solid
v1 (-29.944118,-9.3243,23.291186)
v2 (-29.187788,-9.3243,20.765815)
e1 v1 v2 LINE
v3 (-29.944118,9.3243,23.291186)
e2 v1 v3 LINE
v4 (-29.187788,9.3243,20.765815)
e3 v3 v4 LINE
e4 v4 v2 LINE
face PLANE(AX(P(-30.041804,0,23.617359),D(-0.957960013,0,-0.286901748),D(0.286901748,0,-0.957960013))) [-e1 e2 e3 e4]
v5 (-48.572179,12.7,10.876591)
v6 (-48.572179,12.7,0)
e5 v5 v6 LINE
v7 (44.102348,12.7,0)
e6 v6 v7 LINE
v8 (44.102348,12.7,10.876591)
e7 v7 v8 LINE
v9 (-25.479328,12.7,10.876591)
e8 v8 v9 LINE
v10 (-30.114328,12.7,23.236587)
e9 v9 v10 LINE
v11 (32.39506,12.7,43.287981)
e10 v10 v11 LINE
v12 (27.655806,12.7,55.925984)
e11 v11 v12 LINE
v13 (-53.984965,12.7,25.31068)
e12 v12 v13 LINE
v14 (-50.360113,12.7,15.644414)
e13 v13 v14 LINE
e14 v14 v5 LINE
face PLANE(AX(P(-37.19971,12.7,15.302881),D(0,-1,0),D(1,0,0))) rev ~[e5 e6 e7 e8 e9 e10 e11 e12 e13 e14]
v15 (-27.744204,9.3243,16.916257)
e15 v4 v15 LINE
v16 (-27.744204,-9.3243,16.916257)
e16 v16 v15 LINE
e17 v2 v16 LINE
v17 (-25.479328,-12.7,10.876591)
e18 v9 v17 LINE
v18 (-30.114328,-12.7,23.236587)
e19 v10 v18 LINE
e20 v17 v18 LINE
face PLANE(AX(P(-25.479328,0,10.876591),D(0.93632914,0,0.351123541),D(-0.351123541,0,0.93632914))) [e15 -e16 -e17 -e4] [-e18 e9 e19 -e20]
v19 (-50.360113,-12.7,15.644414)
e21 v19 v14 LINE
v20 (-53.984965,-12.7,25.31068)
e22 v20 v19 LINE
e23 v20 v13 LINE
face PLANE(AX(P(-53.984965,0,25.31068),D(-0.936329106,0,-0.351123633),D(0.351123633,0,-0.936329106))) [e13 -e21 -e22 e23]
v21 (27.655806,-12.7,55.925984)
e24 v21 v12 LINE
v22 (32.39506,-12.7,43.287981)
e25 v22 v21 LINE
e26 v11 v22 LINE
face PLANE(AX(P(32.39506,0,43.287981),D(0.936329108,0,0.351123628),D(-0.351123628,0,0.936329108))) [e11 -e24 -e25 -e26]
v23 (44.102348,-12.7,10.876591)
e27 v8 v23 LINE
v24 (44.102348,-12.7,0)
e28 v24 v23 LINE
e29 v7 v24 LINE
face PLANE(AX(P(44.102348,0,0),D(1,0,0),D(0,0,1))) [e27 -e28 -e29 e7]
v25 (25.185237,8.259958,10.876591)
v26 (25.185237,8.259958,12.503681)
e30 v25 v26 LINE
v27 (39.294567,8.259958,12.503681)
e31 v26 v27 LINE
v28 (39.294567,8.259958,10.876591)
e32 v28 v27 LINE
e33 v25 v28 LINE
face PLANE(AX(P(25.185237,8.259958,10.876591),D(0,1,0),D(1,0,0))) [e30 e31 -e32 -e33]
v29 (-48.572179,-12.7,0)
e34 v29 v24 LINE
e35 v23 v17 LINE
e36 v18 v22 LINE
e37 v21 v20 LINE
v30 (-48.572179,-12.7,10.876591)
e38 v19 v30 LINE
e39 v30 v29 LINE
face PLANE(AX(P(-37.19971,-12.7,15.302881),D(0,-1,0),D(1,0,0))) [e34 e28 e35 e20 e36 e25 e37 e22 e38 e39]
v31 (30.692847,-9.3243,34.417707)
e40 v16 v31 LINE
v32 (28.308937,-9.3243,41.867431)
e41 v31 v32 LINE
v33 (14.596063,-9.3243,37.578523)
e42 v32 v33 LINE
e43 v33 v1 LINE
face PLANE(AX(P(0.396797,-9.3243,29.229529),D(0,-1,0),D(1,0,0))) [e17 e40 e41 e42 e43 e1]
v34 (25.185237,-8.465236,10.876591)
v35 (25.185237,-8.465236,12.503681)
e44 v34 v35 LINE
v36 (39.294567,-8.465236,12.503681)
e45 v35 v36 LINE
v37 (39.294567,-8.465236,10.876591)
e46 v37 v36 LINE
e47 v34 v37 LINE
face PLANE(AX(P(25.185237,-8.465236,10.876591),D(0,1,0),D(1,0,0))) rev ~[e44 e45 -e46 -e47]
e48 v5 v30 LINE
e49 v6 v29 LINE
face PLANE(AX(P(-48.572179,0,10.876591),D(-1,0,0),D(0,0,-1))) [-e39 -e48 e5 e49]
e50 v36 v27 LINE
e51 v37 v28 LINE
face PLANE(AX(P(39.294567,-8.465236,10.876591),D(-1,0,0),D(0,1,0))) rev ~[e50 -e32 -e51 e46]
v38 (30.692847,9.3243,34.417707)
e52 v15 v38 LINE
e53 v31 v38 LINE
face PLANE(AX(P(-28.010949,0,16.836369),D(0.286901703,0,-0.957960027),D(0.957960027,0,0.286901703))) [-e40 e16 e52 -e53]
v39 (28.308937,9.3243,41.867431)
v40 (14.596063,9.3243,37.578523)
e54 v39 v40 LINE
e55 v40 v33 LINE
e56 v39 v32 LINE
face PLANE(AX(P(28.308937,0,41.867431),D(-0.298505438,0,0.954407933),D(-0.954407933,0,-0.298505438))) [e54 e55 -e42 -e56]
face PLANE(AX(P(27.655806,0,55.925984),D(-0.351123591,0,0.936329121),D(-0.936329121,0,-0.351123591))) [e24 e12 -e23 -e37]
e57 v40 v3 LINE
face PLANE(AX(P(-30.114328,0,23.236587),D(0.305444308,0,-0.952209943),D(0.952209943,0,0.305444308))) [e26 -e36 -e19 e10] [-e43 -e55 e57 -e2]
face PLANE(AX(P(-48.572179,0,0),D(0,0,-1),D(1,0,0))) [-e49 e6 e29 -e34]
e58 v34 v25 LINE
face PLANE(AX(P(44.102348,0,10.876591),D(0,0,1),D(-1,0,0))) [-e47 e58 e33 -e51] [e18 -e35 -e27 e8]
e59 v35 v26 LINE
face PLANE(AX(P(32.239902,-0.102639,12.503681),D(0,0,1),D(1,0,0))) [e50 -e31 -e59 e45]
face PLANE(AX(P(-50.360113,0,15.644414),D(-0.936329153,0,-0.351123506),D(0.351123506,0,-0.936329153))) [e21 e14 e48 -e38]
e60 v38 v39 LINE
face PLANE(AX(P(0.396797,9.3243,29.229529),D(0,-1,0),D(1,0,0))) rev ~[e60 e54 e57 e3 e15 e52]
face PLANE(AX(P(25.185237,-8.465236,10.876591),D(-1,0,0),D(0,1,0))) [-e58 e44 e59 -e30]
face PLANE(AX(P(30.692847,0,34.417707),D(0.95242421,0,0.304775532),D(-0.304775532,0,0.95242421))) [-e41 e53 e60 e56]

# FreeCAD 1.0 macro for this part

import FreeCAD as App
import Part
import Sketcher

V = App.Vector
Q = App.Units.Quantity

doc = App.newDocument("Part")
body = doc.addObject("PartDesign::Body", "Body")

sketch1 = body.newObject("Sketcher::SketchObject", "Sketch")
sketch1.AttachmentSupport = (doc.getObject("XZ_Plane"), [""])
sketch1.MapMode = "FlatFace"
sketch1.addGeometry([
    Part.LineSegment(V(-50, 16, 0), V(-49, 11, 0)),
    Part.LineSegment(V(-49, 11, 0), V(-49, 0, 0)),
    Part.LineSegment(V(-49, 0, 0), V(44, 0, 0)),
    Part.LineSegment(V(44, 0, 0), V(44, 11, 0)),
    Part.LineSegment(V(44, 11, 0), V(-25, 11, 0)),
    Part.LineSegment(V(-25, 11, 0), V(-30, 23, 0)),
    Part.LineSegment(V(-30, 23, 0), V(32, 43, 0)),
    Part.LineSegment(V(32, 43, 0), V(28, 56, 0)),
    Part.LineSegment(V(28, 56, 0), V(-54, 25, 0)),
    Part.LineSegment(V(-54, 25, 0), V(-50, 16, 0)),
], False)
sketch1.addConstraint([
    Sketcher.Constraint("Coincident", 0, 2, 1, 1),
    Sketcher.Constraint("Coincident", 1, 2, 2, 1),
    Sketcher.Constraint("Coincident", 2, 2, 3, 1),
    Sketcher.Constraint("Coincident", 3, 2, 4, 1),
    Sketcher.Constraint("Coincident", 4, 2, 5, 1),
    Sketcher.Constraint("Coincident", 5, 2, 6, 1),
    Sketcher.Constraint("Coincident", 6, 2, 7, 1),
    Sketcher.Constraint("Coincident", 7, 2, 8, 1),
    Sketcher.Constraint("Coincident", 8, 2, 9, 1),
    Sketcher.Constraint("Coincident", 9, 2, 0, 1),
    Sketcher.Constraint("Vertical", 1),
    Sketcher.Constraint("Horizontal", 2),
    Sketcher.Constraint("Vertical", 3),
    Sketcher.Constraint("Horizontal", 4),
    Sketcher.Constraint("PointOnObject", 1, 2, -1),
    Sketcher.Constraint("Parallel", 0, 5),
    Sketcher.Constraint("Parallel", 5, 7),
    Sketcher.Constraint("Perpendicular", 7, 8),
    Sketcher.Constraint("Perpendicular", 8, 9),
    Sketcher.Constraint("Horizontal", 0, 2, 3, 2),
    Sketcher.Constraint("DistanceY", 1, 2, 1, 1, 10.876591),
    Sketcher.Constraint("DistanceX", 5, 2, 4, 2, 4.635),
    Sketcher.Constraint("DistanceX", 2, 1, 2, 2, 92.674527),
    Sketcher.Constraint("DistanceX", 4, 2, 4, 1, 69.581676),
    Sketcher.Constraint("DistanceX", 0, 2, -1, 1, 48.572179),
    Sketcher.Constraint("DistanceX", -1, 1, 6, 2, 32.39506),
    Sketcher.Constraint("DistanceY", -1, 1, 6, 2, 43.287981),
    Sketcher.Constraint("DistanceY", -1, 1, 8, 2, 25.31068),
    Sketcher.Constraint("DistanceX", 8, 2, 7, 2, 81.640771),
    Sketcher.Constraint("Distance", 0, 5.092037),
])
pad1 = body.newObject("PartDesign::Pad", "Pad")
pad1.Profile = sketch1
pad1.Length = Q("1 in")
pad1.Midplane = True

sketch2 = body.newObject("Sketcher::SketchObject", "Sketch001")
sketch2.AttachmentSupport = (doc.getObject("XZ_Plane"), [""])
sketch2.MapMode = "FlatFace"
sketch2.addGeometry([
    Part.LineSegment(V(31, 34, 0), V(28, 42, 0)),
    Part.LineSegment(V(28, 42, 0), V(-30, 24, 0)),
    Part.LineSegment(V(-30, 24, 0), V(-28, 17, 0)),
    Part.LineSegment(V(-28, 17, 0), V(31, 34, 0)),
], False)
sketch2.addConstraint([
    Sketcher.Constraint("Coincident", 0, 2, 1, 1),
    Sketcher.Constraint("Coincident", 1, 2, 2, 1),
    Sketcher.Constraint("Coincident", 2, 2, 3, 1),
    Sketcher.Constraint("Coincident", 3, 2, 0, 1),
    Sketcher.Constraint("Perpendicular", 2, 3),
    Sketcher.Constraint("DistanceY", -1, 1, 0, 2, 41.867431),
    Sketcher.Constraint("DistanceY", -1, 1, 1, 2, 23.617359),
    Sketcher.Constraint("DistanceX", 2, 2, -1, 1, 28.010949),
    Sketcher.Constraint("DistanceY", -1, 1, 2, 2, 16.836369),
    Sketcher.Constraint("DistanceX", 1, 2, 0, 2, 58.350741),
    Sketcher.Constraint("DistanceX", 0, 2, 3, 2, 2.38391),
    Sketcher.Constraint("Distance", 0, 7.821855),
])
pad2 = body.newObject("PartDesign::Pad", "Pad001")
pad2.Profile = sketch2
pad2.Length = 18.6486
pad2.Midplane = True

sketch3 = body.newObject("Sketcher::SketchObject", "Sketch002")
sketch3.AttachmentSupport = (doc.getObject("XY_Plane"), [""])
sketch3.MapMode = "FlatFace"
sketch3.AttachmentOffset = App.Placement(V(0, 0, 10.876591), App.Rotation())
sketch3.addGeometry([
    Part.LineSegment(V(25, 8, 0), V(25, -8, 0)),
    Part.LineSegment(V(25, -8, 0), V(39, -8, 0)),
    Part.LineSegment(V(39, -8, 0), V(39, 8, 0)),
    Part.LineSegment(V(39, 8, 0), V(25, 8, 0)),
], False)
sketch3.addConstraint([
    Sketcher.Constraint("Coincident", 0, 2, 1, 1),
    Sketcher.Constraint("Coincident", 1, 2, 2, 1),
    Sketcher.Constraint("Coincident", 2, 2, 3, 1),
    Sketcher.Constraint("Coincident", 3, 2, 0, 1),
    Sketcher.Constraint("Vertical", 0),
    Sketcher.Constraint("Horizontal", 1),
    Sketcher.Constraint("Vertical", 2),
    Sketcher.Constraint("Horizontal", 3),
    Sketcher.Constraint("DistanceX", 1, 1, 1, 2, 14.10933),
    Sketcher.Constraint("DistanceY", 0, 2, 0, 1, 16.725193),
    Sketcher.Constraint("DistanceX", -1, 1, 0, 2, 25.185237),
    Sketcher.Constraint("DistanceY", 0, 2, -1, 1, 8.465236),
])
pad3 = body.newObject("PartDesign::Pad", "Pad002")
pad3.Profile = sketch3
pad3.Length = 1.62709

doc.recompute()
